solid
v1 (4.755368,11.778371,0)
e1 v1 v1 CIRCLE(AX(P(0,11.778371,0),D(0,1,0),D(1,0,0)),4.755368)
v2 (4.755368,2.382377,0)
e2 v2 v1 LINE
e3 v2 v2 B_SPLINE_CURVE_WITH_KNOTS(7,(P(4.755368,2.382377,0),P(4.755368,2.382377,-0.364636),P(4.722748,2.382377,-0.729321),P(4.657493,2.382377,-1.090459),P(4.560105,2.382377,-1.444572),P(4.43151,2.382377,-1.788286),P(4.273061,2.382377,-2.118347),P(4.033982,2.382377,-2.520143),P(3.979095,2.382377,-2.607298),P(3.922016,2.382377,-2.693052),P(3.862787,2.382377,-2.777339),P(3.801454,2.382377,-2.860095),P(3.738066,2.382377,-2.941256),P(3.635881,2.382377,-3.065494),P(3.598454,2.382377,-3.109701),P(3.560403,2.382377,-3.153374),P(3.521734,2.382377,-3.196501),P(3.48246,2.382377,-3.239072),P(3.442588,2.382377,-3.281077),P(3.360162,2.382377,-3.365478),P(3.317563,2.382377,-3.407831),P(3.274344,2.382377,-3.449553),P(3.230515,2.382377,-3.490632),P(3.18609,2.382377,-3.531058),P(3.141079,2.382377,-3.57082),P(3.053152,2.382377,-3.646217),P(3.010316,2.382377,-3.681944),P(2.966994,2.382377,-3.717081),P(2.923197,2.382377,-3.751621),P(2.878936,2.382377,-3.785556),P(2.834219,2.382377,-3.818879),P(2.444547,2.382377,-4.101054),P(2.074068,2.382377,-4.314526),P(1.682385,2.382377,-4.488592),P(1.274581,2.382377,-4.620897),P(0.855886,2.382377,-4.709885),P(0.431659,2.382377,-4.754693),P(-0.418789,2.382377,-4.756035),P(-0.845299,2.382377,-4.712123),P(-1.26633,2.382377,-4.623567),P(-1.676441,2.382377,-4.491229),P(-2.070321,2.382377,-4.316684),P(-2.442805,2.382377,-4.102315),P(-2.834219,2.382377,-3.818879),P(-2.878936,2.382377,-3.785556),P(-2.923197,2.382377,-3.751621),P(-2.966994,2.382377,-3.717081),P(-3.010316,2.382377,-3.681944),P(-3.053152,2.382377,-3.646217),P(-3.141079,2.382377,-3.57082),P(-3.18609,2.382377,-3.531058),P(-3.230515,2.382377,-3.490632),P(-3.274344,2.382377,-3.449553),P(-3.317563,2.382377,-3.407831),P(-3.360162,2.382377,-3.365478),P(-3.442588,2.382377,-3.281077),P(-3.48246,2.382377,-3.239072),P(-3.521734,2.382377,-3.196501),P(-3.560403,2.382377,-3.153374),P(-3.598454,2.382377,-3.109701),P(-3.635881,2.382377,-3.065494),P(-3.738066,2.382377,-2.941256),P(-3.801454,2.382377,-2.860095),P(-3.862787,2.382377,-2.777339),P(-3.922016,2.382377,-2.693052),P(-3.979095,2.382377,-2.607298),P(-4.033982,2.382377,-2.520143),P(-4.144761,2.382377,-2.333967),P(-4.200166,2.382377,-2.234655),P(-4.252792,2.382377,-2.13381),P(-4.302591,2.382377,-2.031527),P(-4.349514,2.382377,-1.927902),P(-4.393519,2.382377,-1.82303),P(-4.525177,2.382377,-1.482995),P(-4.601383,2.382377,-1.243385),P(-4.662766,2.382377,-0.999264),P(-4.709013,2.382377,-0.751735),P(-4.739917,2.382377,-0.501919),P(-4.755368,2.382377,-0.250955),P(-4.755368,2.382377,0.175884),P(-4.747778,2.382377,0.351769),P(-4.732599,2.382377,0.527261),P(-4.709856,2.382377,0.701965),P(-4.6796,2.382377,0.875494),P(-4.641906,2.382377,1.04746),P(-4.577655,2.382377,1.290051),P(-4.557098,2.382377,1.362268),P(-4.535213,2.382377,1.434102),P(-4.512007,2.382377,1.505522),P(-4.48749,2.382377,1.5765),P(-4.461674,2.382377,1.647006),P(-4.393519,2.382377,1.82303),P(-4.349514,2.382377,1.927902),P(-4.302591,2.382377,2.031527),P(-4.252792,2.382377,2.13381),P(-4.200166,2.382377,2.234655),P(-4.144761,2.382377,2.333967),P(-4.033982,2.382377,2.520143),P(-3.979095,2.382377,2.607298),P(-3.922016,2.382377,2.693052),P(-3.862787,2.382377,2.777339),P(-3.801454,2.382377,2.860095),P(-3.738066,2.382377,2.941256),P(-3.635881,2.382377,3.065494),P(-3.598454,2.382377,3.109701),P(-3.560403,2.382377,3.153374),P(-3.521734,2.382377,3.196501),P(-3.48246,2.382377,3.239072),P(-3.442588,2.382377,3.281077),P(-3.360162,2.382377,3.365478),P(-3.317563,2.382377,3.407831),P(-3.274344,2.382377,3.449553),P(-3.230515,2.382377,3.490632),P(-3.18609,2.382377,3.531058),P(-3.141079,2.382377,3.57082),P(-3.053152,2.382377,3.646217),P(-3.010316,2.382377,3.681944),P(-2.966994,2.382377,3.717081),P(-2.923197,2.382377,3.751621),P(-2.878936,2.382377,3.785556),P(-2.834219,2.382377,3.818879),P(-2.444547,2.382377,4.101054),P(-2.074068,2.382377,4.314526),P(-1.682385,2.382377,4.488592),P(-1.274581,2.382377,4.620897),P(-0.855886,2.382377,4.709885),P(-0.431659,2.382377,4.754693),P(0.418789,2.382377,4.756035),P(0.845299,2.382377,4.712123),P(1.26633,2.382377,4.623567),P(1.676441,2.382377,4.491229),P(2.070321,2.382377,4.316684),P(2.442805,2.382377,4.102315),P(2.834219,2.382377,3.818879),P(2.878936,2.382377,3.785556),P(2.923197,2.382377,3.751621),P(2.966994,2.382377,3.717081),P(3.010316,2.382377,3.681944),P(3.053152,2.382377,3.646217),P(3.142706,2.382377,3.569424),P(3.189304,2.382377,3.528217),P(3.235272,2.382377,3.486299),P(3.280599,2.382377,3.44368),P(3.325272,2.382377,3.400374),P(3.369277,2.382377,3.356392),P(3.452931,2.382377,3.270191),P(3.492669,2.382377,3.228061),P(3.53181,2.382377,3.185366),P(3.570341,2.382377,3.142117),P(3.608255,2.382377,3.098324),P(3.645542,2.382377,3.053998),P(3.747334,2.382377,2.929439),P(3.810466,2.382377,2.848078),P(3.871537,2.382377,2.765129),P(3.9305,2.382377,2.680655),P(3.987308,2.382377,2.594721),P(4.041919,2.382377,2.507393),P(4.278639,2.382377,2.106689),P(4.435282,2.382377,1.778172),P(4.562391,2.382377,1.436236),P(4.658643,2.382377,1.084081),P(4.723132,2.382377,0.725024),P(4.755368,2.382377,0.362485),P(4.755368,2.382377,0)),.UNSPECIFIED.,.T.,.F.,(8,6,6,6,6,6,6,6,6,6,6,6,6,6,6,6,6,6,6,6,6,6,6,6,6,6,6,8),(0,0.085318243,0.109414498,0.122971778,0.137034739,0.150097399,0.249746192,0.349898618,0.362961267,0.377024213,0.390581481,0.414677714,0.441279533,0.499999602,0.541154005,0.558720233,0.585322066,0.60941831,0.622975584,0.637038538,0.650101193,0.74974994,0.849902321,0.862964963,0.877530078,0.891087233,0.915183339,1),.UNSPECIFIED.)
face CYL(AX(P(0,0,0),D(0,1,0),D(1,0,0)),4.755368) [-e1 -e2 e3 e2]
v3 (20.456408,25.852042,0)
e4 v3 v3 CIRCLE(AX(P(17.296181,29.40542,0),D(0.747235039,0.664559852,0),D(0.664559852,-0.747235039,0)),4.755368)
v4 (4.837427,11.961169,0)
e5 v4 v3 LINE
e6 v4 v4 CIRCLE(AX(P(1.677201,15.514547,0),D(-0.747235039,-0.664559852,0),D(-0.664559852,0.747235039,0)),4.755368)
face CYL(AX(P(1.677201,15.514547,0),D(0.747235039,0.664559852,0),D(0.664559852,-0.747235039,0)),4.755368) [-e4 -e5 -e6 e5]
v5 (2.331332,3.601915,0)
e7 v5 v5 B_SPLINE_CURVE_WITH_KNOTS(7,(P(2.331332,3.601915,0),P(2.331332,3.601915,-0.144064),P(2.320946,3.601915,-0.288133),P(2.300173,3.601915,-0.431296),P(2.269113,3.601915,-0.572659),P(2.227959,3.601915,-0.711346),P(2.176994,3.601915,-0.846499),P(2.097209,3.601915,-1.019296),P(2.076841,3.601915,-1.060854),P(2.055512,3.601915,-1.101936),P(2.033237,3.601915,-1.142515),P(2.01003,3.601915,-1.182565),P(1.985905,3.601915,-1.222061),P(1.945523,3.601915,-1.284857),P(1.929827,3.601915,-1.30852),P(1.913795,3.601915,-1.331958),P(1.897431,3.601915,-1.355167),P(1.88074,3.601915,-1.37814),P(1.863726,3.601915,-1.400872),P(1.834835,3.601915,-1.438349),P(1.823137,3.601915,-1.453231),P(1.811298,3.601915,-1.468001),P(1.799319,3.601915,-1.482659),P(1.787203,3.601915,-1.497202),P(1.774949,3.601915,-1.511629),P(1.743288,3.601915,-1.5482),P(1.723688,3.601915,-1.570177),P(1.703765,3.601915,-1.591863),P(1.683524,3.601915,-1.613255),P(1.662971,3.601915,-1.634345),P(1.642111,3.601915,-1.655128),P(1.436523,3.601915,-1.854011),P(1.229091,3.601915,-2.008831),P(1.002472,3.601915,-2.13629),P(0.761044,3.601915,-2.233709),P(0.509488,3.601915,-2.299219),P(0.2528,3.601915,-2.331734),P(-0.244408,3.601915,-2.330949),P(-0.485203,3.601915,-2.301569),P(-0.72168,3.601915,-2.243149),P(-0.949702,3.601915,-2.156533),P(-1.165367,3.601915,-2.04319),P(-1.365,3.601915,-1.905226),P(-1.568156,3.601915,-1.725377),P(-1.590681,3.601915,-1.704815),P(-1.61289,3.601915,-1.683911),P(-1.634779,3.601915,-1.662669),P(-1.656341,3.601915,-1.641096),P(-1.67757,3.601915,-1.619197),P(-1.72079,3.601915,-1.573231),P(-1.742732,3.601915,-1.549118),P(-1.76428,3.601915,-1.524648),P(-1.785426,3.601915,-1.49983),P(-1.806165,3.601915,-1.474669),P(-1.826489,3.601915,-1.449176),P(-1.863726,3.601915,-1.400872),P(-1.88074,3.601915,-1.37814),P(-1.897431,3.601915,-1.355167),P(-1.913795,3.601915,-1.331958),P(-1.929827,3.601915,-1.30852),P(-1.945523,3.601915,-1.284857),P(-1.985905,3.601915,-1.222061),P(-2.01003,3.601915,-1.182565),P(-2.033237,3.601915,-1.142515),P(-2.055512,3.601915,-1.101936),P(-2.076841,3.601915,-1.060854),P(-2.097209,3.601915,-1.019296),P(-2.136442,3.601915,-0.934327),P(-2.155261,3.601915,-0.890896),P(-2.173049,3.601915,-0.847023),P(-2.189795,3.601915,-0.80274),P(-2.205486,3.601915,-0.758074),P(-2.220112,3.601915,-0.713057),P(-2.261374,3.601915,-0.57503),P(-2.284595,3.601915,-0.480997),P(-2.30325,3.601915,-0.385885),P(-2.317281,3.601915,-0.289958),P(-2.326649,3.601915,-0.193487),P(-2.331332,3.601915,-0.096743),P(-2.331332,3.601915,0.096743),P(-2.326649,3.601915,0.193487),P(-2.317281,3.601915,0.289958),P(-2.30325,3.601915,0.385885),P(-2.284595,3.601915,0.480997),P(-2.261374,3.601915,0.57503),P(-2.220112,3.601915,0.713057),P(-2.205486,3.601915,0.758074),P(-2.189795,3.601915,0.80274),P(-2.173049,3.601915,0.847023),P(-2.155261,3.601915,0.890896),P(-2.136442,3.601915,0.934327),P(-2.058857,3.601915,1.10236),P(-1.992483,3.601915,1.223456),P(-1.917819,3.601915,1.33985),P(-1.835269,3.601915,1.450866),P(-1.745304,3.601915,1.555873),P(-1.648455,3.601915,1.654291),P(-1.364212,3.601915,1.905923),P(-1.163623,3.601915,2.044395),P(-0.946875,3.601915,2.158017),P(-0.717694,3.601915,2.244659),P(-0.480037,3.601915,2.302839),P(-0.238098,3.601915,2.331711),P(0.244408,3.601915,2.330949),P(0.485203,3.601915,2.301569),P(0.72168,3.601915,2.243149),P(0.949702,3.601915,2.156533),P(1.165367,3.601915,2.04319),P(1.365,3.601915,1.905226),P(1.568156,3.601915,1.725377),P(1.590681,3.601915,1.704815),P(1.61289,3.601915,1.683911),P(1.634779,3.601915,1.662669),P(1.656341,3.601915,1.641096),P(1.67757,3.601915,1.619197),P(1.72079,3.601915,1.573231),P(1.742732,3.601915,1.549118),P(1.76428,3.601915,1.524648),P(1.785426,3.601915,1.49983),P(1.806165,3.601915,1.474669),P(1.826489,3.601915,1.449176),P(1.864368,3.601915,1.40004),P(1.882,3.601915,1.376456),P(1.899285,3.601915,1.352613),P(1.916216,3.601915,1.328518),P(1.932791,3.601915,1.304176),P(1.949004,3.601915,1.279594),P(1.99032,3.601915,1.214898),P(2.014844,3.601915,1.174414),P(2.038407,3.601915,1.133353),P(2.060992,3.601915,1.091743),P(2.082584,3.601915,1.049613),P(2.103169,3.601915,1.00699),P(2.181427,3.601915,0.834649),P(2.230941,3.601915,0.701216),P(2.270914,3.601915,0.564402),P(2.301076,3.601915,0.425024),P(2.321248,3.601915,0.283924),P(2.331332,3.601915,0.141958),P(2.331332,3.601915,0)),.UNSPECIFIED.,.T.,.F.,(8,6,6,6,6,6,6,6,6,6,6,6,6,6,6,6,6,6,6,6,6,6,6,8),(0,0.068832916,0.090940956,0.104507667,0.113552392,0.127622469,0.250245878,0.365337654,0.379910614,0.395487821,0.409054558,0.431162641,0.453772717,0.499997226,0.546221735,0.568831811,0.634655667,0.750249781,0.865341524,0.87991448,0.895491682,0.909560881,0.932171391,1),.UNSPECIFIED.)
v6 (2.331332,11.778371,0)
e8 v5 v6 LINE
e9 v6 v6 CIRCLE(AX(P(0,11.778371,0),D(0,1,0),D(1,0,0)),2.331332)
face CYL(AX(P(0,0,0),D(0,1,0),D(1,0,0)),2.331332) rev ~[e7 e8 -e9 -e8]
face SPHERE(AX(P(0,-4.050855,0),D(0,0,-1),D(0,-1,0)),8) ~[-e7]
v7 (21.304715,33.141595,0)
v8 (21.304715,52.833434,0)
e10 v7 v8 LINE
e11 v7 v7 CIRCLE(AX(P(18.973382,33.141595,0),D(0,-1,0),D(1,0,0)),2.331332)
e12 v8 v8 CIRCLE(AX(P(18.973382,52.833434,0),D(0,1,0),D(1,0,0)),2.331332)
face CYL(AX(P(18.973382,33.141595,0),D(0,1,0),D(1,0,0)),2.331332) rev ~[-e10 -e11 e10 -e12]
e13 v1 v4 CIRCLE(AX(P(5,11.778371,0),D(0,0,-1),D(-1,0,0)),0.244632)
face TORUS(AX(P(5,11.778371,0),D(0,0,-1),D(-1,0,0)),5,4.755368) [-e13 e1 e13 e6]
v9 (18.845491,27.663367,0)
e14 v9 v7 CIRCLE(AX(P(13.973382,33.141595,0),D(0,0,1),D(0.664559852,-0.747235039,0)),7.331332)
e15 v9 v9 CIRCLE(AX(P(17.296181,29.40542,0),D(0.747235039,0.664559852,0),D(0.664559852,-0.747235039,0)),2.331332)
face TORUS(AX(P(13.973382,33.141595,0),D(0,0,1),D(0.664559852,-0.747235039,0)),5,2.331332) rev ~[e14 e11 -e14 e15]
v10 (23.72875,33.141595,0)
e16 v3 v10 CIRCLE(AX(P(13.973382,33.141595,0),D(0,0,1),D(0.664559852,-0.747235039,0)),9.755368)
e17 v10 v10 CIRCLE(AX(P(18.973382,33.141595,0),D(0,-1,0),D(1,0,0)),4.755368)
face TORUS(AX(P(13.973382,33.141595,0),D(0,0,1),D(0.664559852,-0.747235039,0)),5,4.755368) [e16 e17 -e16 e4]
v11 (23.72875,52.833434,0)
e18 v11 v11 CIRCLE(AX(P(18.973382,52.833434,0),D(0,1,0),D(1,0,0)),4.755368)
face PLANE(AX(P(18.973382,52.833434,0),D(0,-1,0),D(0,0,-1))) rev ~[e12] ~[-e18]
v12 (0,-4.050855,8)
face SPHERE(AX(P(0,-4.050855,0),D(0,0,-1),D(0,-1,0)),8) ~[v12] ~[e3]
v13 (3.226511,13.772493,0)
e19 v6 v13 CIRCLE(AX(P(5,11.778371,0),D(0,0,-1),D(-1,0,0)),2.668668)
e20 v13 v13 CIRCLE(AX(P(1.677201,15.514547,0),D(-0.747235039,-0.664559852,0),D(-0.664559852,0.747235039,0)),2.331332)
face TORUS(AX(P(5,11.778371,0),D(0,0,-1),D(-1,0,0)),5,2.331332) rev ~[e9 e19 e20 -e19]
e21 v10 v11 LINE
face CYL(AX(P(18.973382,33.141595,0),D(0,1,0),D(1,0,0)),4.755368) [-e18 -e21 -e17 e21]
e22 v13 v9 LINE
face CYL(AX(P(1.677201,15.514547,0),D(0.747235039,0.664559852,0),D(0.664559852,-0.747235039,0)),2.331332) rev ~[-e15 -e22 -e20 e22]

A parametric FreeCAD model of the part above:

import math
import FreeCAD as App
import Part
import Sketcher

V = App.Vector
Q = App.Units.Quantity

doc = App.newDocument("Part")
body = doc.addObject("PartDesign::Body", "Body")

# Sketch on XZ plane
sketch1 = body.newObject("Sketcher::SketchObject", "Sketch")
sketch1.AttachmentSupport = (doc.getObject("XZ_Plane"), [""])
sketch1.MapMode = "FlatFace"
sketch1.addGeometry([
    Part.Circle(V(0, 0, 0), V(0, 0, 1), 4.8),
    Part.Circle(V(0, 0, 0), V(0, 0, 1), 2.3),
], False)
sketch1.addConstraint([
    Sketcher.Constraint("Coincident", 0, 3, -1, 1),
    Sketcher.Constraint("Coincident", 1, 3, -1, 1),
    Sketcher.Constraint("Diameter", 0, Q("9.510736 mm")),
    Sketcher.Constraint("Diameter", 1, Q("4.662665 mm")),
])

# Sketch on XY plane
sketch2 = body.newObject("Sketcher::SketchObject", "Sketch001")
sketch2.AttachmentSupport = (doc.getObject("XY_Plane"), [""])
sketch2.MapMode = "FlatFace"
sketch2.addGeometry([
    Part.LineSegment(V(0, 0, 0), V(0, 11.8, 0)),  # 0
    Part.ArcOfCircle(Part.Circle(V(5, 11.8, 0), V(0, 0, 1), 5), math.radians(132), math.radians(180)),  # 1
    Part.LineSegment(V(1.7, 15.5, 0), V(17.3, 29.4, 0)),  # 2
    Part.ArcOfCircle(Part.Circle(V(14, 33.1, 0), V(0, 0, 1), 5), math.radians(-48), math.radians(0)),  # 3
    Part.LineSegment(V(19, 33.1, 0), V(19, 52.8, 0)),  # 4
], False)
sketch2.addConstraint([
    Sketcher.Constraint("Tangent", 0, 2, 1, 2),
    Sketcher.Constraint("Tangent", 1, 1, 2, 1),
    Sketcher.Constraint("Tangent", 2, 2, 3, 1),
    Sketcher.Constraint("Tangent", 3, 2, 4, 1),
    Sketcher.Constraint("Vertical", 0),
    Sketcher.Constraint("Vertical", 4),
    Sketcher.Constraint("Coincident", 0, 1, -1, 1),
    Sketcher.Constraint("Equal", 1, 3),
    Sketcher.Constraint("Radius", 1, Q("5 mm")),
    Sketcher.Constraint("DistanceY", 0, 1, 0, 2, Q("11.778371 mm")),
    Sketcher.Constraint("DistanceY", 4, 1, 4, 2, Q("19.691839 mm")),
    Sketcher.Constraint("DistanceX", -1, 1, 1, 1, Q("1.677201 mm")),
    Sketcher.Constraint("DistanceX", -1, 1, 2, 2, Q("17.296181 mm")),
])
doc.recompute()

additivepipe = body.newObject("PartDesign::AdditivePipe", "AdditivePipe")
additivepipe.Profile = sketch1
additivepipe.Spine = (sketch2, ["Edge1", "Edge2", "Edge3", "Edge4", "Edge5"])

# Sketch on YZ plane
sketch3 = body.newObject("Sketcher::SketchObject", "Sketch002")
sketch3.AttachmentSupport = (doc.getObject("YZ_Plane"), [""])
sketch3.MapMode = "FlatFace"
sketch3.addGeometry([
    Part.LineSegment(V(-4, -8, 0), V(-4, 8, 0)),
    Part.ArcOfCircle(Part.Circle(V(-4, 0, 0), V(0, 0, 1), 8), math.radians(90), math.radians(270)),
], False)
sketch3.addGeometry(Part.LineSegment(V(-4, -8, 0), V(-4, 8, 0)), True)  # axis
sketch3.addConstraint([
    Sketcher.Constraint("Coincident", 0, 1, 1, 2),
    Sketcher.Constraint("Coincident", 1, 1, 0, 2),
    Sketcher.Constraint("Vertical", 0),
    Sketcher.Constraint("Vertical", 2),
    Sketcher.Constraint("Coincident", 2, 1, 0, 1),
    Sketcher.Constraint("PointOnObject", 1, 3, -1),
    Sketcher.Constraint("Vertical", 1, 3, 0, 1),
    Sketcher.Constraint("Equal", 0, 2),
    Sketcher.Constraint("Radius", 1, Q("8 mm")),
    Sketcher.Constraint("DistanceX", 1, 3, -1, 1, Q("4.050855 mm")),
])
revolution = body.newObject("PartDesign::Revolution", "Revolution")
revolution.Profile = sketch3
revolution.ReferenceAxis = (sketch3, ["Axis0"])
revolution.Angle = 360

doc.recompute()
